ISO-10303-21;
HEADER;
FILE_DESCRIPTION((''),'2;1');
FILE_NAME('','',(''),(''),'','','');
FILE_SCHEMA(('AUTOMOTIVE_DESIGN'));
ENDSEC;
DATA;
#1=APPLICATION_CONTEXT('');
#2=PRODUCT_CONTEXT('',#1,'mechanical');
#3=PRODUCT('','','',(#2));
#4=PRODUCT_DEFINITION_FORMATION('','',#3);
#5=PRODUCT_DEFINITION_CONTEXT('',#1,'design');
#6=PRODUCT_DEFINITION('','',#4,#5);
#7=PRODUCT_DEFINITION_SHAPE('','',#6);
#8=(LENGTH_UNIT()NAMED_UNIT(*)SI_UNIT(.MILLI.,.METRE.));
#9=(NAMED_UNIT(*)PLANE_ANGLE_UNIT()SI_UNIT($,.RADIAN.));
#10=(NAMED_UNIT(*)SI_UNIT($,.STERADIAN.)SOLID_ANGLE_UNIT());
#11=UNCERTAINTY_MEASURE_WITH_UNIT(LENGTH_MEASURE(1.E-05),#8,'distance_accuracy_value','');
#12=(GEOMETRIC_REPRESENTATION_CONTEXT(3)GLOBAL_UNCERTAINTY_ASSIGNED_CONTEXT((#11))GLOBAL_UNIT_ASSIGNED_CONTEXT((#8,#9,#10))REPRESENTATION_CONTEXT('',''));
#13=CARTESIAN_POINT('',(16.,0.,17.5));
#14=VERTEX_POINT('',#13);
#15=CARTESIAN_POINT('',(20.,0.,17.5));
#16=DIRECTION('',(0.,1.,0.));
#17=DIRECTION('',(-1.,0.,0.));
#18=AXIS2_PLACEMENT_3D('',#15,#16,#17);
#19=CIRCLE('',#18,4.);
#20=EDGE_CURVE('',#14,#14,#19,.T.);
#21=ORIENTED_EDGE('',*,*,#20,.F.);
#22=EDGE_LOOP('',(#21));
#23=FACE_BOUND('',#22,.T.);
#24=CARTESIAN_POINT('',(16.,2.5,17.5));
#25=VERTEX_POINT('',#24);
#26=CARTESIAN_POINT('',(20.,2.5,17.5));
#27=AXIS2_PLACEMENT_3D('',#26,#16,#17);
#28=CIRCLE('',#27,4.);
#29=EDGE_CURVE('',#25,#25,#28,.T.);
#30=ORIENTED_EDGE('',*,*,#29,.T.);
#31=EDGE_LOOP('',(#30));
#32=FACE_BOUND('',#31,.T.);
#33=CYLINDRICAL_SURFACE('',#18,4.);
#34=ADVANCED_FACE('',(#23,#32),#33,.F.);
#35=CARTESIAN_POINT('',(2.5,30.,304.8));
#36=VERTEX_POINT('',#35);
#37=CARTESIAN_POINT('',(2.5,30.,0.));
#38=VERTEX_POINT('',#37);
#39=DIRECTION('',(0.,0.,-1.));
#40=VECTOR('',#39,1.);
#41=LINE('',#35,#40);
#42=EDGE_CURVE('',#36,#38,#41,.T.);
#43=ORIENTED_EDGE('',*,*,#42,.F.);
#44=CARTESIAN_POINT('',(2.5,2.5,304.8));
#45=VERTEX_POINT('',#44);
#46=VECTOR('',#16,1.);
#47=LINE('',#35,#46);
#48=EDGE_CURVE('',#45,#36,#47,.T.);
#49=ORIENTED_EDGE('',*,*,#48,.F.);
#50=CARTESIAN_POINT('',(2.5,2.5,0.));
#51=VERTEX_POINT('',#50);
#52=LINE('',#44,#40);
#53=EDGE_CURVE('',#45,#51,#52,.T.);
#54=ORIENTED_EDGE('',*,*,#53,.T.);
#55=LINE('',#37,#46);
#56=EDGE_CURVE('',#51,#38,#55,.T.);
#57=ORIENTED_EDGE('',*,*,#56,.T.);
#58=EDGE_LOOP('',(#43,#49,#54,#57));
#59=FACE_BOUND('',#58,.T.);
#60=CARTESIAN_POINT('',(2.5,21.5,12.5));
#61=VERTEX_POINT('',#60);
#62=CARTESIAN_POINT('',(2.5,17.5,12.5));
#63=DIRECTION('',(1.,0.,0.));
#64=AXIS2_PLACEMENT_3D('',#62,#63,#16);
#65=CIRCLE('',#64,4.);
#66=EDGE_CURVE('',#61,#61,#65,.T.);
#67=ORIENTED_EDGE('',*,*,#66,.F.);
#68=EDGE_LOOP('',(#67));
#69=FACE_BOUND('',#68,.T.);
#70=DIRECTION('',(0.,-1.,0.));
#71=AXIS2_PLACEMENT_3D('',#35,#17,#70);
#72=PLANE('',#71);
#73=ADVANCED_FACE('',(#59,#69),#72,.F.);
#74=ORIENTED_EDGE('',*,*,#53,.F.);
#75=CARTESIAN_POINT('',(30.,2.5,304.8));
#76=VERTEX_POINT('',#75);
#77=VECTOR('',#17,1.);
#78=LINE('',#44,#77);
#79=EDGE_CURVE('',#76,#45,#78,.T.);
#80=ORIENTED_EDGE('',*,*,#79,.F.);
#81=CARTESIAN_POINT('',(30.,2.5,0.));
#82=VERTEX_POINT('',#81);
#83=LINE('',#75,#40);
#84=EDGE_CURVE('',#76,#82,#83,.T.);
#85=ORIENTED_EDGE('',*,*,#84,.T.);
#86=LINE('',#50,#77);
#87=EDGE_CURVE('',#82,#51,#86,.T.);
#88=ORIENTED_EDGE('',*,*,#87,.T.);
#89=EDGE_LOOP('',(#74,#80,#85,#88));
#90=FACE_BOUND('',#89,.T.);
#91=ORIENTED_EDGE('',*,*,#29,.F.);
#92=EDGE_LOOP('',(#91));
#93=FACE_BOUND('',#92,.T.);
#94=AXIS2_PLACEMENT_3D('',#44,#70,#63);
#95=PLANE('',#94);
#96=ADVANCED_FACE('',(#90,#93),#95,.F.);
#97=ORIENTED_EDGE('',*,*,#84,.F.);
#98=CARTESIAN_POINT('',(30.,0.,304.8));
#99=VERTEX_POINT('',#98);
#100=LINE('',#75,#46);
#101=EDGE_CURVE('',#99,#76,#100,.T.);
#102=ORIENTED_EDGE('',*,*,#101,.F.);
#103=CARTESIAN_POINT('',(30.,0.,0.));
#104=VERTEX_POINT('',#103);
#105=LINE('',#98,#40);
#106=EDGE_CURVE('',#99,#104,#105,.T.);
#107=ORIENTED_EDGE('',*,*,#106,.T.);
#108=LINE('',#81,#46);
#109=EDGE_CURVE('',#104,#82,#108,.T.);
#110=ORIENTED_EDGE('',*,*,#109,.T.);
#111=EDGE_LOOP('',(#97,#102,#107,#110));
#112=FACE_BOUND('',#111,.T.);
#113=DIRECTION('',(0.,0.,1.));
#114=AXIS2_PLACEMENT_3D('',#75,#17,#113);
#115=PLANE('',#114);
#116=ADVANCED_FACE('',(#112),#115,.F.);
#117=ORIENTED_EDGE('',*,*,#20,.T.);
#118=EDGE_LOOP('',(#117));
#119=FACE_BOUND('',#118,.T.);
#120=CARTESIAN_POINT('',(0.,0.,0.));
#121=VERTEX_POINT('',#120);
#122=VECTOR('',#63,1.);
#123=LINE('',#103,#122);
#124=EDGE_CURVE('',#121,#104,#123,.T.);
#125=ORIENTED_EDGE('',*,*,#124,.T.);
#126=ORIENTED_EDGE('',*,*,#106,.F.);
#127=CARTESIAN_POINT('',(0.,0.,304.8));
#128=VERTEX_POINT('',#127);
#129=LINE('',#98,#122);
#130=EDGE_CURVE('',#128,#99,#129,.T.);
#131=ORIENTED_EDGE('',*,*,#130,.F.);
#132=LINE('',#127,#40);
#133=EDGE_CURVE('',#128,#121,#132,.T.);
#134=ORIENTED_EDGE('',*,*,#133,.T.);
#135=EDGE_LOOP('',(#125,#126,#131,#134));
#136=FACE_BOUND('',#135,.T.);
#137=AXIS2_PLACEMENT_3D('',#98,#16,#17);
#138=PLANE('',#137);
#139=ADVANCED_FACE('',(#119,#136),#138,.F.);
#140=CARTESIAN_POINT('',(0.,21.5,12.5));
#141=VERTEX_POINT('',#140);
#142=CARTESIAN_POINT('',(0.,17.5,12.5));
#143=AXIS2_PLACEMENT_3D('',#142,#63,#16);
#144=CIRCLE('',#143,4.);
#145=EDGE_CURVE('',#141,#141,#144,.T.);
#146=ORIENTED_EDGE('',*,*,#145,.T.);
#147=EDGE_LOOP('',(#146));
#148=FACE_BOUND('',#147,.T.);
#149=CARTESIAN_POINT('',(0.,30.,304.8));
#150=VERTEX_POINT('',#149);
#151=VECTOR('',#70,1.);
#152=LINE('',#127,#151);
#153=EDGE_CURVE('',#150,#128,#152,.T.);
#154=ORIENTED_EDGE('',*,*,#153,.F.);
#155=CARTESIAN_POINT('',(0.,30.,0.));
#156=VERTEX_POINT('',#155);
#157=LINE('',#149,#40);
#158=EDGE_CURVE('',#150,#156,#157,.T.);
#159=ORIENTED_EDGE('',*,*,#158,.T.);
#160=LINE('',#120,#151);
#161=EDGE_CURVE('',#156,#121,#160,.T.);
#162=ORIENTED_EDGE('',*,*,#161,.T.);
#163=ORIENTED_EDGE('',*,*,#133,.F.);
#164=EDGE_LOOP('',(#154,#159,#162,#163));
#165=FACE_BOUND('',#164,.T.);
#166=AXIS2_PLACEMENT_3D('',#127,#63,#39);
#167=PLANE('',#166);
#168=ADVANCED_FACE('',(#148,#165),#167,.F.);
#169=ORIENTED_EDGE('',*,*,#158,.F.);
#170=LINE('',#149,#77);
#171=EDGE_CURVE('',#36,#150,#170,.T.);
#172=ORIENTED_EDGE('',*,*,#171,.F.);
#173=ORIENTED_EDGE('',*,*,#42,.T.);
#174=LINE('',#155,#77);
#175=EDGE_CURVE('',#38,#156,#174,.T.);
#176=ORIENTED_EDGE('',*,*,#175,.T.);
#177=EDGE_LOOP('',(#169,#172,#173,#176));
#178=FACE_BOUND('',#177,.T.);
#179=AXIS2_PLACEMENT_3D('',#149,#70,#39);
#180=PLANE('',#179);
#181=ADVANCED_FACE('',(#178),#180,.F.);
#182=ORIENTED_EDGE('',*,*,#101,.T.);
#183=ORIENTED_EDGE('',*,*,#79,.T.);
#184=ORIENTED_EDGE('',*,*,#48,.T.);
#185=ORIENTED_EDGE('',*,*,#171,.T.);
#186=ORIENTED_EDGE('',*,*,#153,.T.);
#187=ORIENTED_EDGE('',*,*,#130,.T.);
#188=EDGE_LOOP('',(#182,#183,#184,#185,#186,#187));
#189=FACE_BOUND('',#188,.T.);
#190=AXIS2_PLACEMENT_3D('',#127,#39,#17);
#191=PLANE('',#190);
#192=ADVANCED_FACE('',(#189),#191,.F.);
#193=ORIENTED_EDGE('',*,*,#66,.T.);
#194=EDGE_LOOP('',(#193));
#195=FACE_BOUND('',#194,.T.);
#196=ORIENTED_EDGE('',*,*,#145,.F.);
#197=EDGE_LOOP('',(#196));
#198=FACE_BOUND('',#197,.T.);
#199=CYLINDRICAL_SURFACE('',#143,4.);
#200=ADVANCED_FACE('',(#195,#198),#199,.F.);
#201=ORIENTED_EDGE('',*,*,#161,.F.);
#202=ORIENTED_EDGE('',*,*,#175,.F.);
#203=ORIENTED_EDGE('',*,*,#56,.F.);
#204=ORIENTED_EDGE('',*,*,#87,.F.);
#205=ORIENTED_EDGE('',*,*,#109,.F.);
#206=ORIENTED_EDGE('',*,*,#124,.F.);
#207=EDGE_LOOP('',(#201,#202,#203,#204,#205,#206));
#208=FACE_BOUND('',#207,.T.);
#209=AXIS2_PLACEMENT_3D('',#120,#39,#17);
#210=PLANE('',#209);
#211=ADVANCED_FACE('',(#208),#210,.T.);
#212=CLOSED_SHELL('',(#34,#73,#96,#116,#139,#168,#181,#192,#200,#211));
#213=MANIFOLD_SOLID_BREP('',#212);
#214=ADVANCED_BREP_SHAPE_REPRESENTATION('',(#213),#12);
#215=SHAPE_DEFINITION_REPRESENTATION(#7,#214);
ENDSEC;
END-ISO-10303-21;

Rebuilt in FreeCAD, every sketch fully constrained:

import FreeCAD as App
import Part
import Sketcher
from FreeCAD import Vector
Q = App.Units.Quantity

doc = App.newDocument("Part")
body = doc.addObject("PartDesign::Body", "Body")

# Sketch on XY plane
sketch1 = doc.addObject("Sketcher::SketchObject", "Sketch")
body.addObject(sketch1)
sketch1.AttachmentSupport = (doc.XY_Plane, [""])
sketch1.MapMode = "FlatFace"
sketch1.addGeometry(Part.LineSegment(Vector(0, 30, 0), Vector(0, 0, 0)), False)
sketch1.addGeometry(Part.LineSegment(Vector(0, 0, 0), Vector(30, 0, 0)), False)
sketch1.addGeometry(Part.LineSegment(Vector(30, 0, 0), Vector(30, 2.5, 0)), False)
sketch1.addGeometry(Part.LineSegment(Vector(30, 2.5, 0), Vector(2.5, 2.5, 0)), False)
sketch1.addGeometry(Part.LineSegment(Vector(2.5, 2.5, 0), Vector(2.5, 30, 0)), False)
sketch1.addGeometry(Part.LineSegment(Vector(2.5, 30, 0), Vector(0, 30, 0)), False)
sketch1.addConstraint(Sketcher.Constraint("Coincident", 0, 2, 1, 1))
sketch1.addConstraint(Sketcher.Constraint("Coincident", 1, 2, 2, 1))
sketch1.addConstraint(Sketcher.Constraint("Coincident", 2, 2, 3, 1))
sketch1.addConstraint(Sketcher.Constraint("Coincident", 3, 2, 4, 1))
sketch1.addConstraint(Sketcher.Constraint("Coincident", 4, 2, 5, 1))
sketch1.addConstraint(Sketcher.Constraint("Coincident", 5, 2, 0, 1))
sketch1.addConstraint(Sketcher.Constraint("Vertical", 0))
sketch1.addConstraint(Sketcher.Constraint("Horizontal", 1))
sketch1.addConstraint(Sketcher.Constraint("Vertical", 2))
sketch1.addConstraint(Sketcher.Constraint("Horizontal", 3))
sketch1.addConstraint(Sketcher.Constraint("Vertical", 4))
sketch1.addConstraint(Sketcher.Constraint("Horizontal", 5))
sketch1.addConstraint(Sketcher.Constraint("Coincident", 0, 2, -1, 1))
sketch1.addConstraint(Sketcher.Constraint("Equal", 1, 0))
sketch1.addConstraint(Sketcher.Constraint("Equal", 5, 2))
sketch1.addConstraint(Sketcher.Constraint("DistanceX", 1, 1, 1, 2, Q("30 mm")))
sketch1.addConstraint(Sketcher.Constraint("DistanceX", 3, 2, 3, 1, Q("27.5 mm")))
pad1 = doc.addObject("PartDesign::Pad", "Pad")
body.addObject(pad1)
pad1.Profile = sketch1
pad1.Length = 304.8

# Sketch on XZ plane
sketch2 = doc.addObject("Sketcher::SketchObject", "Sketch001")
body.addObject(sketch2)
sketch2.AttachmentSupport = (doc.XZ_Plane, [""])
sketch2.MapMode = "FlatFace"
sketch2.AttachmentOffset = App.Placement(Vector(0, 0, -2.5), App.Rotation())
sketch2.addGeometry(Part.Circle(Vector(20, 17.5, 0), Vector(0, 0, 1), 4), False)
sketch2.addConstraint(Sketcher.Constraint("Diameter", 0, Q("8 mm")))
sketch2.addConstraint(Sketcher.Constraint("DistanceX", -1, 1, 0, 3, Q("20 mm")))
sketch2.addConstraint(Sketcher.Constraint("DistanceY", -1, 1, 0, 3, Q("17.5 mm")))
pocket1 = doc.addObject("PartDesign::Pocket", "Pocket")
body.addObject(pocket1)
pocket1.Profile = sketch2
pocket1.Type = "ThroughAll"
pocket1.Reversed = True

# Sketch on YZ plane
sketch3 = doc.addObject("Sketcher::SketchObject", "Sketch002")
body.addObject(sketch3)
sketch3.AttachmentSupport = (doc.YZ_Plane, [""])
sketch3.MapMode = "FlatFace"
sketch3.AttachmentOffset = App.Placement(Vector(0, 0, 2.5), App.Rotation())
sketch3.addGeometry(Part.Circle(Vector(17.5, 12.5, 0), Vector(0, 0, 1), 4), False)
sketch3.addConstraint(Sketcher.Constraint("Diameter", 0, Q("8 mm")))
sketch3.addConstraint(Sketcher.Constraint("DistanceX", -1, 1, 0, 3, Q("17.5 mm")))
sketch3.addConstraint(Sketcher.Constraint("DistanceY", -1, 1, 0, 3, Q("12.5 mm")))
pocket2 = doc.addObject("PartDesign::Pocket", "Pocket001")
body.addObject(pocket2)
pocket2.Profile = sketch3
pocket2.Type = "ThroughAll"

doc.recompute()
